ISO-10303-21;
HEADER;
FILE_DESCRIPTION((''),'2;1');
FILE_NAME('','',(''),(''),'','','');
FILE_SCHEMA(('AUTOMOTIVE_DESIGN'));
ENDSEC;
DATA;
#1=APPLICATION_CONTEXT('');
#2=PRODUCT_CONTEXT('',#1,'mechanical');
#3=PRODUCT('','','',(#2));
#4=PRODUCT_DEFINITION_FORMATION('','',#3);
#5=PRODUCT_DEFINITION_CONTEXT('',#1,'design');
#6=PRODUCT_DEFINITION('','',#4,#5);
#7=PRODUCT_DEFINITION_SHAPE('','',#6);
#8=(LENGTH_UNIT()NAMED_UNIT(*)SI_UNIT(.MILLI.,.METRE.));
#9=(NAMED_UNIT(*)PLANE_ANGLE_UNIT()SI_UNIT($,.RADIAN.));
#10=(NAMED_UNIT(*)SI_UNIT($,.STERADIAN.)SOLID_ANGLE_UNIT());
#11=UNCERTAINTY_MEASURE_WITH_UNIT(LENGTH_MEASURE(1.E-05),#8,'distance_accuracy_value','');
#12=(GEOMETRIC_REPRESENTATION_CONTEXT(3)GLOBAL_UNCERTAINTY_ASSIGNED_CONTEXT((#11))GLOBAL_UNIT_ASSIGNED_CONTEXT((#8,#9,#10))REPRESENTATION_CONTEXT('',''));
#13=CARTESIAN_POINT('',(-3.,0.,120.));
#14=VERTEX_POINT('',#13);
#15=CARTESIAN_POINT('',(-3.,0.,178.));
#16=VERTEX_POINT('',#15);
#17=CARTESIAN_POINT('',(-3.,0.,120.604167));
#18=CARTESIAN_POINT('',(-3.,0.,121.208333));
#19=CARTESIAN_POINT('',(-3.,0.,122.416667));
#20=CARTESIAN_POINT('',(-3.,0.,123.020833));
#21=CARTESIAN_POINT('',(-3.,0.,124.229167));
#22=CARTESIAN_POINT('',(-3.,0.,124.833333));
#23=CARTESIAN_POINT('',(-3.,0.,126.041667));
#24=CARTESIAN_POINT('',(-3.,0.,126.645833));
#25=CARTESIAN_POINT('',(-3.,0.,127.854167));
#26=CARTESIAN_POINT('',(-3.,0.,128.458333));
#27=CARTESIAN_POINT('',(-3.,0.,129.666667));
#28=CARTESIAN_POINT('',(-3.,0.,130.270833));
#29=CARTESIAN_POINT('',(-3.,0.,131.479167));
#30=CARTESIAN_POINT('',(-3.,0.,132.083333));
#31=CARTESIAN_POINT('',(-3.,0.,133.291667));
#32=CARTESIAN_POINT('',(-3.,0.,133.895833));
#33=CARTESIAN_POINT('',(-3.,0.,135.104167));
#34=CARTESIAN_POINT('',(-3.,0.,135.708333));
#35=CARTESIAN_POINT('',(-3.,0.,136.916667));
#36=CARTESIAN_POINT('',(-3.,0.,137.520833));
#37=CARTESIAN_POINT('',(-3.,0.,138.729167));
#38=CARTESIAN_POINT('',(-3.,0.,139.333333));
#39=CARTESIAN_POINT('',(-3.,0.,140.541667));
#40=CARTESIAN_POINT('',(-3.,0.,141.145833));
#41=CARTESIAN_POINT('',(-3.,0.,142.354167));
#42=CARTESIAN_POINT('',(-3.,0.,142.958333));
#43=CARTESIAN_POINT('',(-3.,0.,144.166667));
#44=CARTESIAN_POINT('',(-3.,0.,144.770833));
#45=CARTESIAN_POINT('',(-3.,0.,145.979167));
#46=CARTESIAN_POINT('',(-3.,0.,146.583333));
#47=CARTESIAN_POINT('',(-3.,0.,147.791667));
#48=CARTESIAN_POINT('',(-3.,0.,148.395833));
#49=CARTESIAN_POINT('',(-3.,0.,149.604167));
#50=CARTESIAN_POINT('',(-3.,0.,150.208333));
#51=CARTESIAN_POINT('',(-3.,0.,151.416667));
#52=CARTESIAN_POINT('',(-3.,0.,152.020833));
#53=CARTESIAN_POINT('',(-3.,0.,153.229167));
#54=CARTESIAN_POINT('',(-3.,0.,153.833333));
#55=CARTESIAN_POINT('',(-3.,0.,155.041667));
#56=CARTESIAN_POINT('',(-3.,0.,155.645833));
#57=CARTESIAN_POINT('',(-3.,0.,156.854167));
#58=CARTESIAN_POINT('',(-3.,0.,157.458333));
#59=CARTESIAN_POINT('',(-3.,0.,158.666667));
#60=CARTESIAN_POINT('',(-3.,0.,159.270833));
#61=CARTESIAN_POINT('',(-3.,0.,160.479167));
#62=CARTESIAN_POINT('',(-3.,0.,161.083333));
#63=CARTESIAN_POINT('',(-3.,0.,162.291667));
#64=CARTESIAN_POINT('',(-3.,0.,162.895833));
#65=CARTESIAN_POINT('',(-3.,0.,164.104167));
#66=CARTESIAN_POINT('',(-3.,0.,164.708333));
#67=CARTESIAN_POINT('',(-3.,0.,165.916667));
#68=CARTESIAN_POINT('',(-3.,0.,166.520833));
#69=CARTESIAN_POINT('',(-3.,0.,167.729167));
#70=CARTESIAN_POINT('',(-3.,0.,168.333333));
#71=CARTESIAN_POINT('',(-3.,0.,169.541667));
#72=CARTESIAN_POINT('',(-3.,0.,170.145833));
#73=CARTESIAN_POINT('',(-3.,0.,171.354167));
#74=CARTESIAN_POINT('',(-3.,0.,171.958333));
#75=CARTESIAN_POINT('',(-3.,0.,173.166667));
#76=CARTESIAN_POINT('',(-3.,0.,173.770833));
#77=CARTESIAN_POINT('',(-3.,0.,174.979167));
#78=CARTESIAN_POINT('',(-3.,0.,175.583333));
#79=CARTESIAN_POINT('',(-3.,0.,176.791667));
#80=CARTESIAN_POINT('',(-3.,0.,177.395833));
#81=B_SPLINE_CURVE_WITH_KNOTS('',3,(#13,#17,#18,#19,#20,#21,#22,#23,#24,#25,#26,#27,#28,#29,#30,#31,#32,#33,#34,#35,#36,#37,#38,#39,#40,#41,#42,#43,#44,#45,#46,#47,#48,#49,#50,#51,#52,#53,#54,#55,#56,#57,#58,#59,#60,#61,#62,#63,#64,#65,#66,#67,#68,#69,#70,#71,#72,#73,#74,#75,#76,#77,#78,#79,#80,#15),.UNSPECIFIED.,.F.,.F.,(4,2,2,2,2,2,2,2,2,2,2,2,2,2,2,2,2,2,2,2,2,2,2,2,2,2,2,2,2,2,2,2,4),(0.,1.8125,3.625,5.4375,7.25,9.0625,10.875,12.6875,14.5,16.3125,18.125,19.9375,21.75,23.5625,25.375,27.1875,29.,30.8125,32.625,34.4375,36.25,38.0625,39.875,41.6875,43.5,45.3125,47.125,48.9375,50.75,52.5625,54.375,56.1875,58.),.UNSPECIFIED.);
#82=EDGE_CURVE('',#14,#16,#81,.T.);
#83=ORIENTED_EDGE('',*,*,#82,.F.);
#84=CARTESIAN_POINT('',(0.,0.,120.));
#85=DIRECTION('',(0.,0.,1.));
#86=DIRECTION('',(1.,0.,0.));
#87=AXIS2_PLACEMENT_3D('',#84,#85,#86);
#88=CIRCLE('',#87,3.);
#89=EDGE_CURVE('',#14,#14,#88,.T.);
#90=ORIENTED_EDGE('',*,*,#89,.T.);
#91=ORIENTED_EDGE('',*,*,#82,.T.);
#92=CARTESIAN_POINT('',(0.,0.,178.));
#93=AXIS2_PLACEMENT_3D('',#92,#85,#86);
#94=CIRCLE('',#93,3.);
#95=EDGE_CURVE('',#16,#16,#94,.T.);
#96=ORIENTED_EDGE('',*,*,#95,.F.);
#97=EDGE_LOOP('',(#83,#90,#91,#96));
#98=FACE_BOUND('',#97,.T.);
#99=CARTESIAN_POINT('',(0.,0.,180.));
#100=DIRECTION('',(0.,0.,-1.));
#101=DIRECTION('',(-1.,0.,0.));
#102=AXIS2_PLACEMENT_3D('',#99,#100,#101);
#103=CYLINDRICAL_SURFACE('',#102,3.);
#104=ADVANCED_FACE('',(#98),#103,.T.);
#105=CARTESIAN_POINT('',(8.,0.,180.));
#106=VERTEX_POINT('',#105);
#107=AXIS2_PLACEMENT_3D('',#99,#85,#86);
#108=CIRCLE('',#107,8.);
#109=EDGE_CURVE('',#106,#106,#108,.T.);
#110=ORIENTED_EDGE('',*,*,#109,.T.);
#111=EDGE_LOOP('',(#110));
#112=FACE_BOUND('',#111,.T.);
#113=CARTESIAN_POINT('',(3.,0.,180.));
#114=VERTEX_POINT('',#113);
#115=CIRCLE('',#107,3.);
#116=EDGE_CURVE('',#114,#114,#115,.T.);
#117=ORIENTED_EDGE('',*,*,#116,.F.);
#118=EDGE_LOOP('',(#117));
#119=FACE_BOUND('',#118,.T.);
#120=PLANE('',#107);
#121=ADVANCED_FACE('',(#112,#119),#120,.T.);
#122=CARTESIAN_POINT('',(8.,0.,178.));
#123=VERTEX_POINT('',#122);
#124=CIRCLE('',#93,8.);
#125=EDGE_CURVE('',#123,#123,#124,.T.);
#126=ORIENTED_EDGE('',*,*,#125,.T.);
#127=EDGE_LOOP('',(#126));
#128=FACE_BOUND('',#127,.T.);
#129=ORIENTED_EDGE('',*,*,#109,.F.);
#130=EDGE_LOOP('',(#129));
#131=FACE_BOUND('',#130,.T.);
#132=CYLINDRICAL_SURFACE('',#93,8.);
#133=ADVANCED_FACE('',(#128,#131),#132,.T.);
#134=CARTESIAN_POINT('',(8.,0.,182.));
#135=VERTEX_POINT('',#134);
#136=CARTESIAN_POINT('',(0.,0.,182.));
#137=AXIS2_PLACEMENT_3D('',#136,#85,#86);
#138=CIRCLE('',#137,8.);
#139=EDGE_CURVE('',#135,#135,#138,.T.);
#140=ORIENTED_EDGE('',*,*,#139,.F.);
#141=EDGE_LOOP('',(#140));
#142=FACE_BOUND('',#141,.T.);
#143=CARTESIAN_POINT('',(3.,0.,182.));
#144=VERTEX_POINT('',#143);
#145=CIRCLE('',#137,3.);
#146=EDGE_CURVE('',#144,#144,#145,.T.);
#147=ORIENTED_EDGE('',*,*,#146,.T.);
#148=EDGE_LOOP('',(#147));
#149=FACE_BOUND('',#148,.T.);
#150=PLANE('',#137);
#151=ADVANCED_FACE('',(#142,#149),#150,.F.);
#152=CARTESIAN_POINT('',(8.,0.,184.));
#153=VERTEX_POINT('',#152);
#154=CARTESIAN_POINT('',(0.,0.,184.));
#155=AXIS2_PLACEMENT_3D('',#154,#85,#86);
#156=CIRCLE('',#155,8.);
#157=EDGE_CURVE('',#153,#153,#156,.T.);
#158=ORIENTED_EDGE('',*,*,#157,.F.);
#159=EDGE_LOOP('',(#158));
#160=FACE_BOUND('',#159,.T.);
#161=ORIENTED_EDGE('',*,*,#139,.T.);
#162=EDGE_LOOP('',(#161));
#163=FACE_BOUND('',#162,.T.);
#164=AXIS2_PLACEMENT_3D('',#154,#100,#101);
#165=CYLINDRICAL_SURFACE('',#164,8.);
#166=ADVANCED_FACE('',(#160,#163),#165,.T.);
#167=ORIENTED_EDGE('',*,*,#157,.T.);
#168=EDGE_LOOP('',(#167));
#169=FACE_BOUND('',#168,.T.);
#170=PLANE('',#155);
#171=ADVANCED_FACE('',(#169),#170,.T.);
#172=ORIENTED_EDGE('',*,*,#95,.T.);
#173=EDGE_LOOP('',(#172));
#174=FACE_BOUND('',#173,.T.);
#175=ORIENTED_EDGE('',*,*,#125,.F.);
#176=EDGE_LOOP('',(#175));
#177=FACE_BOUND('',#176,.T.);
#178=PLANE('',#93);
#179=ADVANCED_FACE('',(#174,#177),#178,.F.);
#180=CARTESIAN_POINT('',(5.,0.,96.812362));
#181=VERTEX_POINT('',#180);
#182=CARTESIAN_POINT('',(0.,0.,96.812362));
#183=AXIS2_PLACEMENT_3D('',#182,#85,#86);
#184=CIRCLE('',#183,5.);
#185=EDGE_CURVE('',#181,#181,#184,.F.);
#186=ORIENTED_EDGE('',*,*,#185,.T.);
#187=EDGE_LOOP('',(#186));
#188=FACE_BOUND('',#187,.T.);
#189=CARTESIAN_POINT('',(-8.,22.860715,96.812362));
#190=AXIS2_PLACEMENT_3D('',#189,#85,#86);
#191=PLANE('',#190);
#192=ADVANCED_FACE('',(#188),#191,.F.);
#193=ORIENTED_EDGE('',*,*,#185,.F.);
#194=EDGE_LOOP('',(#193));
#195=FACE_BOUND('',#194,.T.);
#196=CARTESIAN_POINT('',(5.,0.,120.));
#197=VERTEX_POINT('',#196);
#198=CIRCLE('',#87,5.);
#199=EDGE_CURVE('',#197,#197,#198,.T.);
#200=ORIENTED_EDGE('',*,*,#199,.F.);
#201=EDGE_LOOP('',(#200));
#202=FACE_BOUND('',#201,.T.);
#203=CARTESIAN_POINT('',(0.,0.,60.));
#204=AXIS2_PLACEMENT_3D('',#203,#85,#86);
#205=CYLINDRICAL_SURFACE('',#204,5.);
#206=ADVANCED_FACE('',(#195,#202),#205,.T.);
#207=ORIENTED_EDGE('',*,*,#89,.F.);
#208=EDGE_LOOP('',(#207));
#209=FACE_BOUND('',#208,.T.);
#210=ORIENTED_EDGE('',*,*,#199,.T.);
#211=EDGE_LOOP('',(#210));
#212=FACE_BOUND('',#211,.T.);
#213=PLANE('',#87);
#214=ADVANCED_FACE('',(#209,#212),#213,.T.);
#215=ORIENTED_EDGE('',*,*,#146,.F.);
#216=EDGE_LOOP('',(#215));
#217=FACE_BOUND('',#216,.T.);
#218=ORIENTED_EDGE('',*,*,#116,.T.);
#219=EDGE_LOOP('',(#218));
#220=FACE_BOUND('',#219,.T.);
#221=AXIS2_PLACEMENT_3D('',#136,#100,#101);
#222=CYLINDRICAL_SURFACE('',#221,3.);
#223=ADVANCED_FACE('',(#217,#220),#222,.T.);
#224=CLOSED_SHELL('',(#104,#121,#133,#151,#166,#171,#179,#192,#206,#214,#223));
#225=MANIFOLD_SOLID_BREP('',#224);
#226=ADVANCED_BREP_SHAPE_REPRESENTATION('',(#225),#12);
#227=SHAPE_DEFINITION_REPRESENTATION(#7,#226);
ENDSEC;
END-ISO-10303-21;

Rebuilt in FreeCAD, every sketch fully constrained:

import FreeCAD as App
import Part
import Sketcher

doc = App.newDocument("Part")
body = doc.addObject("PartDesign::Body", "Body")

# Sketch on XY plane
sketch1 = body.newObject("Sketcher::SketchObject", "Sketch")
sketch1.AttachmentSupport = (doc.getObject("XY_Plane"), [""])
sketch1.MapMode = "FlatFace"
sketch1.addGeometry(Part.Circle(App.Vector(0, 0, 0), App.Vector(0, 0, 1), 3), False)
sketch1.addConstraint([
    Sketcher.Constraint("Coincident", 0, 3, -1, 1),
    Sketcher.Constraint("Diameter", 0, 6.0),
])
pad1 = body.newObject("PartDesign::Pad", "Pad")
pad1.Profile = sketch1
pad1.Length = 180

# Sketch on XY plane
sketch2 = body.newObject("Sketcher::SketchObject", "Sketch001")
sketch2.AttachmentSupport = (doc.getObject("XY_Plane"), [""])
sketch2.MapMode = "FlatFace"
sketch2.AttachmentOffset = App.Placement(App.Vector(0, 0, 180), App.Rotation())
sketch2.addGeometry(Part.Circle(App.Vector(0, 0, 0), App.Vector(0, 0, 1), 8), False)
sketch2.addConstraint([
    Sketcher.Constraint("Coincident", 0, 3, -1, 1),
    Sketcher.Constraint("Diameter", 0, 16.0),
])
pad2 = body.newObject("PartDesign::Pad", "Pad001")
pad2.Profile = sketch2
pad2.Length = 2
pad2.Reversed = True

# Sketch on XY plane
sketch3 = body.newObject("Sketcher::SketchObject", "Sketch002")
sketch3.AttachmentSupport = (doc.getObject("XY_Plane"), [""])
sketch3.MapMode = "FlatFace"
sketch3.AttachmentOffset = App.Placement(App.Vector(0, 0, 2), App.Rotation())
sketch3.addGeometry(Part.Circle(App.Vector(0, 0, 0), App.Vector(0, 0, 1), 8), False)
sketch3.addConstraint([
    Sketcher.Constraint("Coincident", 0, 3, -1, 1),
    Sketcher.Constraint("Diameter", 0, 16.0),
])
pad3 = body.newObject("PartDesign::Pad", "Pad002")
pad3.Profile = sketch3
pad3.Length = 2
pad3.Reversed = True

# Sketch on XY plane
sketch4 = body.newObject("Sketcher::SketchObject", "Sketch003")
sketch4.AttachmentSupport = (doc.getObject("XY_Plane"), [""])
sketch4.MapMode = "FlatFace"
sketch4.AttachmentOffset = App.Placement(App.Vector(0, 0, -2), App.Rotation())
sketch4.addGeometry(Part.Circle(App.Vector(0, 0, 0), App.Vector(0, 0, 1), 3), False)
sketch4.addConstraint([
    Sketcher.Constraint("Coincident", 0, 3, -1, 1),
    Sketcher.Constraint("Diameter", 0, 6.0),
])
pad4 = body.newObject("PartDesign::Pad", "Pad003")
pad4.Profile = sketch4
pad4.Length = 2

# Sketch on XY plane
sketch5 = body.newObject("Sketcher::SketchObject", "Sketch004")
sketch5.AttachmentSupport = (doc.getObject("XY_Plane"), [""])
sketch5.MapMode = "FlatFace"
sketch5.AttachmentOffset = App.Placement(App.Vector(0, 0, 180), App.Rotation())
sketch5.addGeometry(Part.Circle(App.Vector(0, 0, 0), App.Vector(0, 0, 1), 3), False)
sketch5.addConstraint([
    Sketcher.Constraint("Coincident", 0, 3, -1, 1),
    Sketcher.Constraint("Diameter", 0, 6.0),
])
pad5 = body.newObject("PartDesign::Pad", "Pad004")
pad5.Profile = sketch5
pad5.Length = 2

# Sketch on XY plane
sketch6 = body.newObject("Sketcher::SketchObject", "Sketch005")
sketch6.AttachmentSupport = (doc.getObject("XY_Plane"), [""])
sketch6.MapMode = "FlatFace"
sketch6.AttachmentOffset = App.Placement(App.Vector(0, 0, 184), App.Rotation())
sketch6.addGeometry(Part.Circle(App.Vector(0, 0, 0), App.Vector(0, 0, 1), 8), False)
sketch6.addConstraint([
    Sketcher.Constraint("Coincident", 0, 3, -1, 1),
    Sketcher.Constraint("Diameter", 0, 16.0),
])
pad6 = body.newObject("PartDesign::Pad", "Pad005")
pad6.Profile = sketch6
pad6.Length = 2
pad6.Reversed = True

# Sketch on XY plane
sketch7 = body.newObject("Sketcher::SketchObject", "Sketch006")
sketch7.AttachmentSupport = (doc.getObject("XY_Plane"), [""])
sketch7.MapMode = "FlatFace"
sketch7.AttachmentOffset = App.Placement(App.Vector(0, 0, -2), App.Rotation())
sketch7.addGeometry(Part.Circle(App.Vector(0, 0, 0), App.Vector(0, 0, 1), 8), False)
sketch7.addConstraint([
    Sketcher.Constraint("Coincident", 0, 3, -1, 1),
    Sketcher.Constraint("Diameter", 0, 16.0),
])
pad7 = body.newObject("PartDesign::Pad", "Pad006")
pad7.Profile = sketch7
pad7.Length = 2
pad7.Reversed = True

# Sketch on XY plane
sketch8 = body.newObject("Sketcher::SketchObject", "Sketch007")
sketch8.AttachmentSupport = (doc.getObject("XY_Plane"), [""])
sketch8.MapMode = "FlatFace"
sketch8.AttachmentOffset = App.Placement(App.Vector(0, 0, 120), App.Rotation())
sketch8.addGeometry(Part.Circle(App.Vector(0, 0, 0), App.Vector(0, 0, 1), 5), False)
sketch8.addConstraint([
    Sketcher.Constraint("Coincident", 0, 3, -1, 1),
    Sketcher.Constraint("Diameter", 0, 10.0),
])
pad8 = body.newObject("PartDesign::Pad", "Pad007")
pad8.Profile = sketch8
pad8.Length = 60
pad8.Reversed = True

# Sketch on YZ plane
sketch9 = body.newObject("Sketcher::SketchObject", "Sketch008")
sketch9.AttachmentSupport = (doc.getObject("YZ_Plane"), [""])
sketch9.MapMode = "FlatFace"
sketch9.addGeometry([
    Part.LineSegment(App.Vector(23, 97, 0), App.Vector(-22, 97, 0)),
    Part.LineSegment(App.Vector(-22, 97, 0), App.Vector(-22, -19, 0)),
    Part.LineSegment(App.Vector(-22, -19, 0), App.Vector(23, -19, 0)),
    Part.LineSegment(App.Vector(23, -19, 0), App.Vector(23, 97, 0)),
], False)
sketch9.addConstraint([
    Sketcher.Constraint("Coincident", 0, 2, 1, 1),
    Sketcher.Constraint("Coincident", 1, 2, 2, 1),
    Sketcher.Constraint("Coincident", 2, 2, 3, 1),
    Sketcher.Constraint("Coincident", 3, 2, 0, 1),
    Sketcher.Constraint("Horizontal", 0),
    Sketcher.Constraint("Vertical", 1),
    Sketcher.Constraint("Horizontal", 2),
    Sketcher.Constraint("Vertical", 3),
    Sketcher.Constraint("DistanceY", 1, 2, -1, 1, 19.128801),
    Sketcher.Constraint("DistanceX", 0, 2, 0, 1, 45.197403),
    Sketcher.Constraint("DistanceY", 1, 2, 1, 1, 115.941163),
    Sketcher.Constraint("DistanceX", 0, 2, -1, 1, 22.336687),
])
pocket1 = body.newObject("PartDesign::Pocket", "Pocket")
pocket1.Profile = sketch9
pocket1.Type = "ThroughAll"
pocket1.Midplane = True

doc.recompute()
